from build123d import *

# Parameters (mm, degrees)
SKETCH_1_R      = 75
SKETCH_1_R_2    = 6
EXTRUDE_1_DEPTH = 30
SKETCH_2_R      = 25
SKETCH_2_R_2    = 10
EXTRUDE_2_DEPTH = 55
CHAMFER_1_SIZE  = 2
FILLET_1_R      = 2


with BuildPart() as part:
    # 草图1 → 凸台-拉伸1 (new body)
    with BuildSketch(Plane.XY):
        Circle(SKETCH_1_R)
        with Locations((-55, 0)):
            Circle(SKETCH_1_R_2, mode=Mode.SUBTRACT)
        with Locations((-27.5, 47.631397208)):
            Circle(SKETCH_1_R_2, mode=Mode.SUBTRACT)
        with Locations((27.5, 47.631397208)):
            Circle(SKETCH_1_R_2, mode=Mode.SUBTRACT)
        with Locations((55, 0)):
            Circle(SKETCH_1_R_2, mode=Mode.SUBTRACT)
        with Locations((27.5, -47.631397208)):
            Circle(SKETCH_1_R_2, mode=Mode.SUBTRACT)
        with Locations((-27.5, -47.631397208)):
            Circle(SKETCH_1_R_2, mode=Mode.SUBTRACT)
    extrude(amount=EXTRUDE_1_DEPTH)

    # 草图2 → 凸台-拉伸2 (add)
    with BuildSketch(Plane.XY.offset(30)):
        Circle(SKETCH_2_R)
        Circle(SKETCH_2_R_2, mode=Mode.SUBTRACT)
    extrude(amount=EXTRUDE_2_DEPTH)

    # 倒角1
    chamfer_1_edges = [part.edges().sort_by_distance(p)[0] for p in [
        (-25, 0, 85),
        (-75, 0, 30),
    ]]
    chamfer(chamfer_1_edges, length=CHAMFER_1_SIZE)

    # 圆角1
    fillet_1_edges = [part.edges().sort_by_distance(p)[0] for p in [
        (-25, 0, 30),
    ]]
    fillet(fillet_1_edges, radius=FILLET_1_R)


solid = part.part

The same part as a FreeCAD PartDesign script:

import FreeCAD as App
import Part
import Sketcher

V = App.Vector


def edges_at(feature, points):
    """Names of the edges that pass closest to the given points."""
    edges = feature.Shape.Edges
    near = lambda p: min(range(len(edges)), key=lambda i: edges[i].distToShape(Part.Vertex(*p))[0])
    return sorted({f"Edge{near(p) + 1}" for p in points})

doc = App.newDocument("Part")
body = doc.addObject("PartDesign::Body", "Body")

sketch1 = doc.addObject("Sketcher::SketchObject", "Sketch")
body.addObject(sketch1)
sketch1.AttachmentSupport = (doc.XY_Plane, [""])
sketch1.MapMode = "FlatFace"
sketch1.addGeometry([
    Part.Circle(V(0, 0, 0), V(0, 0, 1), 75),
    Part.Circle(V(-27.5, -47.631397, 0), V(0, 0, 1), 6),
    Part.Circle(V(27.5, -47.631397, 0), V(0, 0, 1), 6),
    Part.Circle(V(-55, 0, 0), V(0, 0, 1), 6),
    Part.Circle(V(-27.5, 47.631397, 0), V(0, 0, 1), 6),
    Part.Circle(V(55, 0, 0), V(0, 0, 1), 6),
    Part.Circle(V(27.5, 47.631397, 0), V(0, 0, 1), 6),
], False)
sketch1.addConstraint([
    Sketcher.Constraint("Coincident", 0, 3, -1, 1),
    Sketcher.Constraint("Equal", 1, 2),
    Sketcher.Constraint("Equal", 2, 3),
    Sketcher.Constraint("Equal", 3, 4),
    Sketcher.Constraint("Equal", 4, 5),
    Sketcher.Constraint("Equal", 5, 6),
    Sketcher.Constraint("Symmetric", 2, 3, 4, 3, -1, 1),
    Sketcher.Constraint("Symmetric", 3, 3, 5, 3, -1, 1),
    Sketcher.Constraint("Symmetric", 1, 3, 6, 3, -1, 1),
    Sketcher.Constraint("Symmetric", 1, 3, 2, 3, -2),
    Sketcher.Constraint("PointOnObject", 3, 3, -1),
    Sketcher.Constraint("Diameter", 0, 150.0),
    Sketcher.Constraint("Diameter", 1, 12.0),
    Sketcher.Constraint("DistanceX", 3, 3, -1, 1, 55.0),
    Sketcher.Constraint("DistanceX", 1, 3, 2, 3, 55.0),
    Sketcher.Constraint("DistanceY", 1, 3, -1, 1, 47.631397),
])
pad1 = doc.addObject("PartDesign::Pad", "Pad")
body.addObject(pad1)
pad1.Profile = sketch1
pad1.Length = 30

sketch2 = doc.addObject("Sketcher::SketchObject", "Sketch001")
body.addObject(sketch2)
sketch2.AttachmentSupport = (doc.XY_Plane, [""])
sketch2.MapMode = "FlatFace"
sketch2.AttachmentOffset = App.Placement(V(0, 0, 30), App.Rotation())
sketch2.addGeometry([
    Part.Circle(V(0, 0, 0), V(0, 0, 1), 25),
    Part.Circle(V(0, 0, 0), V(0, 0, 1), 10),
], False)
sketch2.addConstraint([
    Sketcher.Constraint("Coincident", 0, 3, -1, 1),
    Sketcher.Constraint("Coincident", 1, 3, -1, 1),
    Sketcher.Constraint("Diameter", 0, 50.0),
    Sketcher.Constraint("Diameter", 1, 20.0),
])
pad2 = doc.addObject("PartDesign::Pad", "Pad001")
body.addObject(pad2)
pad2.Profile = sketch2
pad2.Length = 55
doc.recompute()

chamfer = doc.addObject("PartDesign::Chamfer", "Chamfer")
body.addObject(chamfer)
chamfer.Base = (pad2, edges_at(pad2, [(-25, 0, 85), (-75, 0, 30)]))
chamfer.Size = 2
doc.recompute()

fillet = doc.addObject("PartDesign::Fillet", "Fillet")
body.addObject(fillet)
fillet.Base = (chamfer, edges_at(chamfer, [(-25, 0, 30)]))
fillet.Radius = 2

doc.recompute()
